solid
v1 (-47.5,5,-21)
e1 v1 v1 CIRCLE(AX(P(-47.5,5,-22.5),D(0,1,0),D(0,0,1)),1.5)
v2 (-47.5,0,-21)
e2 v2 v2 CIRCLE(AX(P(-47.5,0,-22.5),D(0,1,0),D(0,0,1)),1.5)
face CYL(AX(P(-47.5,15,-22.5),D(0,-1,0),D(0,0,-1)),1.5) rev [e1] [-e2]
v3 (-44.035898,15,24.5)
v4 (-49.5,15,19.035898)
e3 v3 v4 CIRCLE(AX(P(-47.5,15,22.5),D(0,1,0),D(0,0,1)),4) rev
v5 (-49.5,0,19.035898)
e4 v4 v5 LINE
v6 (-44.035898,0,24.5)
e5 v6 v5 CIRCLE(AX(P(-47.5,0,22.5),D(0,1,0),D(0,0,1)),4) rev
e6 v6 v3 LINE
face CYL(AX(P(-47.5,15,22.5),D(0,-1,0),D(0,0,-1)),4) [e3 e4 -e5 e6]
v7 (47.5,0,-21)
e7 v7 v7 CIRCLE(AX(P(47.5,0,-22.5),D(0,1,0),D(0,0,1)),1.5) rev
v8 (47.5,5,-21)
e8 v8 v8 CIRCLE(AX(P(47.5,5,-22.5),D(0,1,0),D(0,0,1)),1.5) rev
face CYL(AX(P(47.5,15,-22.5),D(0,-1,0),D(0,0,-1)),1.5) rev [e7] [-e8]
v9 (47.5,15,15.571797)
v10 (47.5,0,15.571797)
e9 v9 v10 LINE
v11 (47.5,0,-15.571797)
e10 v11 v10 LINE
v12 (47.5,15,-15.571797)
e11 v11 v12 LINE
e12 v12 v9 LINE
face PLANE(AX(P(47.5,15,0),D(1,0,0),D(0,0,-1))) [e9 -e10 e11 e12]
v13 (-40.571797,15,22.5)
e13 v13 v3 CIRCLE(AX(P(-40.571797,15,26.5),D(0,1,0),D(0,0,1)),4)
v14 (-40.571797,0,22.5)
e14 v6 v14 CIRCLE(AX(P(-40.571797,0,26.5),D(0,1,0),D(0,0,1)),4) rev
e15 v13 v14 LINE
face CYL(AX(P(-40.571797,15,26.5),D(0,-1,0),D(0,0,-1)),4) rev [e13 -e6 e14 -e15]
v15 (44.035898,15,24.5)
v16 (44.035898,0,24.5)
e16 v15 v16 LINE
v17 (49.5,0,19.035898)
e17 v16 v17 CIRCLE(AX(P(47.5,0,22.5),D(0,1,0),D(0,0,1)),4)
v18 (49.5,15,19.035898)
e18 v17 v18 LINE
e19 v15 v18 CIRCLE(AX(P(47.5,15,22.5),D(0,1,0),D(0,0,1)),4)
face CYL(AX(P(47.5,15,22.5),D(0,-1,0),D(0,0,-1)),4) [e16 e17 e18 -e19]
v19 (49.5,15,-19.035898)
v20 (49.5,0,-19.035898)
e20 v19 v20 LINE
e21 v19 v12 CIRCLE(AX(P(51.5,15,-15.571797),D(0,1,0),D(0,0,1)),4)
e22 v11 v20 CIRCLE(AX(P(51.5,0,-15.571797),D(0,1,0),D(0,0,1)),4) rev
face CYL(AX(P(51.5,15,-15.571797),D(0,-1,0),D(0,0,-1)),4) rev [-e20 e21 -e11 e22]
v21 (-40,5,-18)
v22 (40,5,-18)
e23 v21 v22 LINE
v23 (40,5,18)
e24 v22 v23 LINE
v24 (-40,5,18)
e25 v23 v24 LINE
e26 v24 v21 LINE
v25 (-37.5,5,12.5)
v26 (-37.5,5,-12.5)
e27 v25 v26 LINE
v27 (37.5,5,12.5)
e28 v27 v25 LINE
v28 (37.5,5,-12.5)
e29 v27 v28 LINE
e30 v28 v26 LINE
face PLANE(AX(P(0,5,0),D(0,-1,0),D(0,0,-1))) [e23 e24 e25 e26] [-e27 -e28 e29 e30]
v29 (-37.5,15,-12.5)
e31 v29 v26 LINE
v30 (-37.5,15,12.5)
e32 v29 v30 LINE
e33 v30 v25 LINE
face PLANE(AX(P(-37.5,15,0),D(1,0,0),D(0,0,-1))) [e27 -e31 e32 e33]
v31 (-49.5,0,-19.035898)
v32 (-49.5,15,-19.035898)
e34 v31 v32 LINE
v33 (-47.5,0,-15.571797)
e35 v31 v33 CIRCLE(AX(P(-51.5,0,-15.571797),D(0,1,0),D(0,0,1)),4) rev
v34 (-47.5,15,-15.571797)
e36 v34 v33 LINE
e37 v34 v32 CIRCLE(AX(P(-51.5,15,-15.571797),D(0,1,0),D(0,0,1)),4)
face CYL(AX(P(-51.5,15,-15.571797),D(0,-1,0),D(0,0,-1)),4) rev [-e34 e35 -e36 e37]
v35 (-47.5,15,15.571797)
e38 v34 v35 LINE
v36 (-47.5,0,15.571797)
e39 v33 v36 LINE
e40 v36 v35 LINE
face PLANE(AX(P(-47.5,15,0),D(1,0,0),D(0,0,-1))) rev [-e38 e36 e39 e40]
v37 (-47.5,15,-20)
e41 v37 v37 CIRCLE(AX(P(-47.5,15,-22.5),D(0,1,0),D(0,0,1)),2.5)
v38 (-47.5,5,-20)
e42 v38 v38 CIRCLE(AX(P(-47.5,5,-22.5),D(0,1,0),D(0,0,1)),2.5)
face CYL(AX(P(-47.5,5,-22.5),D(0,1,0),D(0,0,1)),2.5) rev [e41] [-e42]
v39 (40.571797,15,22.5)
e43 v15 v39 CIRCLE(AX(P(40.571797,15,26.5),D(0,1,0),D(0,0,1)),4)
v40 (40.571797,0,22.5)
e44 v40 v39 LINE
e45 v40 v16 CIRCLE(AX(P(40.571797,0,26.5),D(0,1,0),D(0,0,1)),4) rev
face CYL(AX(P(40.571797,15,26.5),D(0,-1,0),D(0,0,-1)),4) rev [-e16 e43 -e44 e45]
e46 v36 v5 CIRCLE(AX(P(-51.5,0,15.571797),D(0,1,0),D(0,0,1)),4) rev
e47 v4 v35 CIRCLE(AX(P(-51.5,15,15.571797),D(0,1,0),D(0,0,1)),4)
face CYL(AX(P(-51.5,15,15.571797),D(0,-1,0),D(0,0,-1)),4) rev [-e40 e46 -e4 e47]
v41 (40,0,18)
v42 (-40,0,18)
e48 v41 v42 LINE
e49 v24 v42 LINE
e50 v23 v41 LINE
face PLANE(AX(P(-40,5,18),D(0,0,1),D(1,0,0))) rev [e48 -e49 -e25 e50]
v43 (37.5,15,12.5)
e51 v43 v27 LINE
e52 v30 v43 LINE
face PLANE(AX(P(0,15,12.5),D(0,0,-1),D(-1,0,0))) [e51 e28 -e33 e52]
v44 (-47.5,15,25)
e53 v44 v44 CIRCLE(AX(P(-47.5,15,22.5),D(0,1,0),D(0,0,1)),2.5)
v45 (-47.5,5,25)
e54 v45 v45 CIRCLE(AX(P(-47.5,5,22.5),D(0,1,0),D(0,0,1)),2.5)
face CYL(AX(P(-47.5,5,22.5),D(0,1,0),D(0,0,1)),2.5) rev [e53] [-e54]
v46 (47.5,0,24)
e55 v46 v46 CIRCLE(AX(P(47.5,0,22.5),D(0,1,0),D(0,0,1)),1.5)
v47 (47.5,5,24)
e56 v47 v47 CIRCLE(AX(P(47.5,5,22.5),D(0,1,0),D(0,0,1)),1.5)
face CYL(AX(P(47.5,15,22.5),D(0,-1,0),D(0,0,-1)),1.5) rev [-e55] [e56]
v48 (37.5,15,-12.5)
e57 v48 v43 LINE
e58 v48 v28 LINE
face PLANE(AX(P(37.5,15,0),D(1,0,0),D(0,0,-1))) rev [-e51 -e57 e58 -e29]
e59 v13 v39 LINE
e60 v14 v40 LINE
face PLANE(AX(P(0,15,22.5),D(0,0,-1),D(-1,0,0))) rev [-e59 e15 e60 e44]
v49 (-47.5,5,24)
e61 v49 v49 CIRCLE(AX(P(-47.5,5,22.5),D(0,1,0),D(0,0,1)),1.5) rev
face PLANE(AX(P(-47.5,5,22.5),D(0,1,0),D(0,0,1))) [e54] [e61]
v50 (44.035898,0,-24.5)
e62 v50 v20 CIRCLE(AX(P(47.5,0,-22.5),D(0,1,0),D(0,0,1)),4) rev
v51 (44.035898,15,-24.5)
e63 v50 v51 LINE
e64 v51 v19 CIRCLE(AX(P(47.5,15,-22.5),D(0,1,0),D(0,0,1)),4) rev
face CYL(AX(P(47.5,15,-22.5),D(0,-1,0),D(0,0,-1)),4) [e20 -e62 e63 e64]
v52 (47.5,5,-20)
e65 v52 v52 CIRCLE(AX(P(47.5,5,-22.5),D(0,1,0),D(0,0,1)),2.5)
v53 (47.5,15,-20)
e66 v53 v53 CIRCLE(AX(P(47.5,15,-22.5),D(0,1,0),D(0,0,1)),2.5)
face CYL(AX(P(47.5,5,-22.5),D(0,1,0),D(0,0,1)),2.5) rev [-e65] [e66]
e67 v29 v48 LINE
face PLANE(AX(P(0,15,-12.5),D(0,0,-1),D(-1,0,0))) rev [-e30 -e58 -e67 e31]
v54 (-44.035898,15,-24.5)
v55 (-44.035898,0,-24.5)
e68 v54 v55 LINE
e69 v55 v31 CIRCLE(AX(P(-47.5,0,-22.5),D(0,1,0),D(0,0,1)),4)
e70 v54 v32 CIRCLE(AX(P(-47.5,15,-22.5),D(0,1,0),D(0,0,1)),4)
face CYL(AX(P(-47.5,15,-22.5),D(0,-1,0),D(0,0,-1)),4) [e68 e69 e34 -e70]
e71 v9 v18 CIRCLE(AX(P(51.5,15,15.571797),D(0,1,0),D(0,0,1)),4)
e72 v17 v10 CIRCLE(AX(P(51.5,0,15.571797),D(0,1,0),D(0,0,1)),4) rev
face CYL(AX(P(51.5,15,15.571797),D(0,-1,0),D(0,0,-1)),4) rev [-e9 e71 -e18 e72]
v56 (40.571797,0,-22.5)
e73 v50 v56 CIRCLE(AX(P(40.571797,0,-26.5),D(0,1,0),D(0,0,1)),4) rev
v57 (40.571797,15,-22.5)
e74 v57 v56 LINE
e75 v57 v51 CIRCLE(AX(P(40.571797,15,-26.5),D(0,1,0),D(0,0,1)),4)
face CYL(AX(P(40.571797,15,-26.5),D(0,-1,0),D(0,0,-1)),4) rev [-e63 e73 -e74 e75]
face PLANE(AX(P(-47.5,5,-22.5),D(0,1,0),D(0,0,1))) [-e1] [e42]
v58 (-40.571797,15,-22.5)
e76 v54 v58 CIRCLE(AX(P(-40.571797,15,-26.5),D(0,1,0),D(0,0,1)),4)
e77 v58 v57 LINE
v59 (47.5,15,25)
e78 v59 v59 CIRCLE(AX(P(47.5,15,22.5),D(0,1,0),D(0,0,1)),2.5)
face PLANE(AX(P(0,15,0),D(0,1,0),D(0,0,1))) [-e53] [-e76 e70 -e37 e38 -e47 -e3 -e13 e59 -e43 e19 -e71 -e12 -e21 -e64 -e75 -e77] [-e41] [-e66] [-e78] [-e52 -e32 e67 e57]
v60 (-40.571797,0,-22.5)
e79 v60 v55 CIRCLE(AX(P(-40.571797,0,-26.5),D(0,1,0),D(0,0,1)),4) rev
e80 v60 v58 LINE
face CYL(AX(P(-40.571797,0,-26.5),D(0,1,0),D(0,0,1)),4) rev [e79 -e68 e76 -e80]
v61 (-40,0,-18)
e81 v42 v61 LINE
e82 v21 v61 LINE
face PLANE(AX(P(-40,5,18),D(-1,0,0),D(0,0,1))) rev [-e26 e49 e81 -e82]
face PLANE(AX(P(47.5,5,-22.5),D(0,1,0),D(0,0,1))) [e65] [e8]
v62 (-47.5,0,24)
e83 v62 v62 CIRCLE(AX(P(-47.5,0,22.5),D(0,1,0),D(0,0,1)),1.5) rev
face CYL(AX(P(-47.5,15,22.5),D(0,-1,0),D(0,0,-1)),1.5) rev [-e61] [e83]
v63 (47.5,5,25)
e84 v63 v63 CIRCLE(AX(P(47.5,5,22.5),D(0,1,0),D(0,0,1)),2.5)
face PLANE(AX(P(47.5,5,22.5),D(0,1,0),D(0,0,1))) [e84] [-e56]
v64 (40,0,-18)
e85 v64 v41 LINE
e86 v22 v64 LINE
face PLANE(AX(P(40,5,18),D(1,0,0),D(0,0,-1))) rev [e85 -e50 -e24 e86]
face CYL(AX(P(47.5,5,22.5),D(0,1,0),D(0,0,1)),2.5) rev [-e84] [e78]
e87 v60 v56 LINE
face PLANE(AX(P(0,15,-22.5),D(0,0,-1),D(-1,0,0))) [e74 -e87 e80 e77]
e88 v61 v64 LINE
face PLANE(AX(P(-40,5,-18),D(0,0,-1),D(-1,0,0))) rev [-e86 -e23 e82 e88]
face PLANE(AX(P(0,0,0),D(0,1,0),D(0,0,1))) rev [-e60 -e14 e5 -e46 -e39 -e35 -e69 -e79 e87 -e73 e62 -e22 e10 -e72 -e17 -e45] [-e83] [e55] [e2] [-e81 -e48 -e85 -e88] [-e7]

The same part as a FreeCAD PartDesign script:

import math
import FreeCAD as App
import Part
import Sketcher
from FreeCAD import Vector
Q = App.Units.Quantity


def edges_at(feature, points):
    """Names of the edges that pass closest to the given points."""
    edges = feature.Shape.Edges
    near = lambda p: min(range(len(edges)), key=lambda i: edges[i].distToShape(Part.Vertex(*p))[0])
    return sorted({f"Edge{near(p) + 1}" for p in points})

doc = App.newDocument("Part")
params = doc.addObject("Spreadsheet::Sheet", "Params")
for row, (alias, value) in enumerate([
    ("sketch1_diameter", "3 mm"),
    ("sketch1_radius", "4 mm"),
    ("sketch1_width", "87 mm"),
    ("sketch1_width2", "75 mm"),
    ("sketch1_height", "37 mm"),
    ("pad1_length", "15 mm"),
    ("fillet_radius", "4 mm"),
    ("fillet2_radius", "4 mm"),
    ("fillet3_radius", "4 mm"),
    ("fillet4_radius", "4 mm"),
    ("fillet5_radius", "4 mm"),
    ("fillet6_radius", "4 mm"),
    ("fillet7_radius", "4 mm"),
    ("fillet8_radius", "4 mm"),
    ("sketch2_diameter", "5 mm"),
    ("pocket1_length", "10 mm"),
    ("sketch3_width", "80 mm"),
    ("sketch3_height", "36 mm"),
    ("pocket2_length", "5 mm"),
], start=1):
    params.set(f"A{row}", alias)
    params.set(f"B{row}", "=" + value)
    params.setAlias(f"B{row}", alias)

body = doc.addObject("PartDesign::Body", "Body")

# Sketch on XZ plane
sketch1 = body.newObject("Sketcher::SketchObject", "Sketch")
sketch1.AttachmentSupport = (doc.getObject("XZ_Plane"), [""])
sketch1.MapMode = "FlatFace"
sketch1.addGeometry([
    Part.ArcOfCircle(Part.Circle(Vector(-47.5, -22.5, 0), Vector(0, 0, 1), 4), math.radians(90), math.radians(360)),  # 0
    Part.LineSegment(Vector(-47.5, -18.5, 0), Vector(-47.5, 18.5, 0)),  # 1
    Part.ArcOfCircle(Part.Circle(Vector(-47.5, 22.5, 0), Vector(0, 0, 1), 4), math.radians(0), math.radians(270)),  # 2
    Part.LineSegment(Vector(-43.5, 22.5, 0), Vector(43.5, 22.5, 0)),  # 3
    Part.ArcOfCircle(Part.Circle(Vector(47.5, 22.5, 0), Vector(0, 0, 1), 4), math.radians(-90), math.radians(180)),  # 4
    Part.LineSegment(Vector(47.5, 18.5, 0), Vector(47.5, -18.5, 0)),  # 5
    Part.ArcOfCircle(Part.Circle(Vector(47.5, -22.5, 0), Vector(0, 0, 1), 4), math.radians(180), math.radians(450)),  # 6
    Part.LineSegment(Vector(43.5, -22.5, 0), Vector(-43.5, -22.5, 0)),  # 7
    Part.Circle(Vector(-47.5, 22.5, 0), Vector(0, 0, 1), 1.5),  # 8
    Part.Circle(Vector(47.5, 22.5, 0), Vector(0, 0, 1), 1.5),  # 9
    Part.LineSegment(Vector(37.5, 12.5, 0), Vector(-37.5, 12.5, 0)),  # 10
    Part.LineSegment(Vector(-37.5, 12.5, 0), Vector(-37.5, -12.5, 0)),  # 11
    Part.LineSegment(Vector(-37.5, -12.5, 0), Vector(37.5, -12.5, 0)),  # 12
    Part.LineSegment(Vector(37.5, -12.5, 0), Vector(37.5, 12.5, 0)),  # 13
    Part.Circle(Vector(-47.5, -22.5, 0), Vector(0, 0, 1), 1.5),  # 14
    Part.Circle(Vector(47.5, -22.5, 0), Vector(0, 0, 1), 1.5),  # 15
], False)
sketch1.addConstraint([
    Sketcher.Constraint("Coincident", 0, 1, 1, 1),
    Sketcher.Constraint("Coincident", 1, 2, 2, 2),
    Sketcher.Constraint("Coincident", 2, 1, 3, 1),
    Sketcher.Constraint("Coincident", 3, 2, 4, 2),
    Sketcher.Constraint("Coincident", 4, 1, 5, 1),
    Sketcher.Constraint("Coincident", 5, 2, 6, 2),
    Sketcher.Constraint("Coincident", 6, 1, 7, 1),
    Sketcher.Constraint("Coincident", 7, 2, 0, 2),
    Sketcher.Constraint("Coincident", 10, 2, 11, 1),
    Sketcher.Constraint("Coincident", 11, 2, 12, 1),
    Sketcher.Constraint("Coincident", 12, 2, 13, 1),
    Sketcher.Constraint("Coincident", 13, 2, 10, 1),
    Sketcher.Constraint("Vertical", 1),
    Sketcher.Constraint("Horizontal", 3),
    Sketcher.Constraint("Vertical", 5),
    Sketcher.Constraint("Horizontal", 7),
    Sketcher.Constraint("Horizontal", 10),
    Sketcher.Constraint("Vertical", 11),
    Sketcher.Constraint("Horizontal", 12),
    Sketcher.Constraint("Vertical", 13),
    Sketcher.Constraint("Coincident", 8, 3, 2, 3),
    Sketcher.Constraint("Coincident", 9, 3, 4, 3),
    Sketcher.Constraint("Coincident", 14, 3, 0, 3),
    Sketcher.Constraint("Coincident", 15, 3, 6, 3),
    Sketcher.Constraint("Equal", 0, 2),
    Sketcher.Constraint("Equal", 2, 4),
    Sketcher.Constraint("Equal", 4, 6),
    Sketcher.Constraint("Equal", 8, 9),
    Sketcher.Constraint("Equal", 9, 14),
    Sketcher.Constraint("Equal", 14, 15),
    Sketcher.Constraint("Symmetric", 0, 3, 4, 3, -1, 1),
    Sketcher.Constraint("Symmetric", 2, 3, 6, 3, -1, 1),
    Sketcher.Constraint("Symmetric", 10, 2, 12, 2, -1, 1),
    Sketcher.Constraint("Symmetric", 2, 3, 4, 3, -2),
    Sketcher.Constraint("Horizontal", 9, 3, 2, 1),
    Sketcher.Constraint("Horizontal", 15, 3, 6, 1),
    Sketcher.Constraint("Vertical", 14, 3, 0, 1),
    Sketcher.Constraint("Vertical", 15, 3, 4, 1),
    Sketcher.Constraint("Diameter", 8, Q("3 mm")),
    Sketcher.Constraint("Radius", 0, Q("4 mm")),
    Sketcher.Constraint("DistanceX", 3, 1, 3, 2, Q("87 mm")),
    Sketcher.Constraint("DistanceX", 10, 2, 10, 1, Q("75 mm")),
    Sketcher.Constraint("DistanceY", 1, 1, 1, 2, Q("37 mm")),
    Sketcher.Constraint("DistanceY", 11, 2, 11, 1, Q("25 mm")),
])
sketch1.setExpression("Constraints[38]", "Params.sketch1_diameter")
sketch1.setExpression("Constraints[39]", "Params.sketch1_radius")
sketch1.setExpression("Constraints[40]", "Params.sketch1_width")
sketch1.setExpression("Constraints[41]", "Params.sketch1_width2")
sketch1.setExpression("Constraints[42]", "Params.sketch1_height")
pad1 = body.newObject("PartDesign::Pad", "Pad")
pad1.Profile = sketch1
pad1.setExpression("Length", "Params.pad1_length")
pad1.Reversed = True
doc.recompute()

fillet = body.newObject("PartDesign::Fillet", "Fillet")
fillet.Base = (pad1, edges_at(pad1, [(-43.5, 7.5, -22.5)]))
fillet.setExpression("Radius", "Params.fillet_radius")
doc.recompute()

fillet2 = body.newObject("PartDesign::Fillet", "Fillet001")
fillet2.Base = (fillet, edges_at(fillet, [(-47.5, 7.5, -18.5)]))
fillet2.setExpression("Radius", "Params.fillet2_radius")
doc.recompute()

fillet3 = body.newObject("PartDesign::Fillet", "Fillet002")
fillet3.Base = (fillet2, edges_at(fillet2, [(47.5, 7.5, -18.5)]))
fillet3.setExpression("Radius", "Params.fillet3_radius")
doc.recompute()

fillet4 = body.newObject("PartDesign::Fillet", "Fillet003")
fillet4.Base = (fillet3, edges_at(fillet3, [(43.5, 7.5, -22.5)]))
fillet4.setExpression("Radius", "Params.fillet4_radius")
doc.recompute()

fillet5 = body.newObject("PartDesign::Fillet", "Fillet004")
fillet5.Base = (fillet4, edges_at(fillet4, [(47.5, 7.5, 18.5)]))
fillet5.setExpression("Radius", "Params.fillet5_radius")
doc.recompute()

fillet6 = body.newObject("PartDesign::Fillet", "Fillet005")
fillet6.Base = (fillet5, edges_at(fillet5, [(43.5, 7.5, 22.5)]))
fillet6.setExpression("Radius", "Params.fillet6_radius")
doc.recompute()

fillet7 = body.newObject("PartDesign::Fillet", "Fillet006")
fillet7.Base = (fillet6, edges_at(fillet6, [(-43.5, 7.5, 22.5)]))
fillet7.setExpression("Radius", "Params.fillet7_radius")
doc.recompute()

fillet8 = body.newObject("PartDesign::Fillet", "Fillet007")
fillet8.Base = (fillet7, edges_at(fillet7, [(-47.5, 7.5, 18.5)]))
fillet8.setExpression("Radius", "Params.fillet8_radius")

# Sketch on XZ plane
sketch2 = body.newObject("Sketcher::SketchObject", "Sketch001")
sketch2.AttachmentSupport = (doc.getObject("XZ_Plane"), [""])
sketch2.MapMode = "FlatFace"
sketch2.AttachmentOffset = App.Placement(Vector(0, 0, -15), App.Rotation())
sketch2.addGeometry([
    Part.Circle(Vector(-47.5, -22.5, 0), Vector(0, 0, 1), 2.5),
    Part.Circle(Vector(47.5, -22.5, 0), Vector(0, 0, 1), 2.5),
    Part.Circle(Vector(47.5, 22.5, 0), Vector(0, 0, 1), 2.5),
    Part.Circle(Vector(-47.5, 22.5, 0), Vector(0, 0, 1), 2.5),
], False)
sketch2.addConstraint([
    Sketcher.Constraint("Equal", 0, 1),
    Sketcher.Constraint("Equal", 1, 2),
    Sketcher.Constraint("Equal", 2, 3),
    Sketcher.Constraint("Symmetric", 0, 3, 2, 3, -1, 1),
    Sketcher.Constraint("Symmetric", 1, 3, 3, 3, -1, 1),
    Sketcher.Constraint("Symmetric", 0, 3, 1, 3, -2),
    Sketcher.Constraint("Diameter", 0, Q("5 mm")),
    Sketcher.Constraint("DistanceX", 0, 3, 1, 3, Q("95 mm")),
    Sketcher.Constraint("DistanceY", 1, 3, 2, 3, Q("45 mm")),
])
sketch2.setExpression("Constraints[6]", "Params.sketch2_diameter")
pocket1 = body.newObject("PartDesign::Pocket", "Pocket")
pocket1.Profile = sketch2
pocket1.setExpression("Length", "Params.pocket1_length")
pocket1.Reversed = True

# Sketch on XZ plane
sketch3 = body.newObject("Sketcher::SketchObject", "Sketch002")
sketch3.AttachmentSupport = (doc.getObject("XZ_Plane"), [""])
sketch3.MapMode = "FlatFace"
sketch3.addGeometry([
    Part.LineSegment(Vector(40, -18, 0), Vector(40, 18, 0)),
    Part.LineSegment(Vector(40, 18, 0), Vector(-40, 18, 0)),
    Part.LineSegment(Vector(-40, 18, 0), Vector(-40, -18, 0)),
    Part.LineSegment(Vector(-40, -18, 0), Vector(40, -18, 0)),
], False)
sketch3.addConstraint([
    Sketcher.Constraint("Coincident", 0, 2, 1, 1),
    Sketcher.Constraint("Coincident", 1, 2, 2, 1),
    Sketcher.Constraint("Coincident", 2, 2, 3, 1),
    Sketcher.Constraint("Coincident", 3, 2, 0, 1),
    Sketcher.Constraint("Vertical", 0),
    Sketcher.Constraint("Horizontal", 1),
    Sketcher.Constraint("Vertical", 2),
    Sketcher.Constraint("Horizontal", 3),
    Sketcher.Constraint("Symmetric", 0, 2, 2, 2, -1, 1),
    Sketcher.Constraint("DistanceX", 1, 2, 1, 1, Q("80 mm")),
    Sketcher.Constraint("DistanceY", 0, 1, 0, 2, Q("36 mm")),
])
sketch3.setExpression("Constraints[9]", "Params.sketch3_width")
sketch3.setExpression("Constraints[10]", "Params.sketch3_height")
pocket2 = body.newObject("PartDesign::Pocket", "Pocket001")
pocket2.Profile = sketch3
pocket2.setExpression("Length", "Params.pocket2_length")

doc.recompute()
